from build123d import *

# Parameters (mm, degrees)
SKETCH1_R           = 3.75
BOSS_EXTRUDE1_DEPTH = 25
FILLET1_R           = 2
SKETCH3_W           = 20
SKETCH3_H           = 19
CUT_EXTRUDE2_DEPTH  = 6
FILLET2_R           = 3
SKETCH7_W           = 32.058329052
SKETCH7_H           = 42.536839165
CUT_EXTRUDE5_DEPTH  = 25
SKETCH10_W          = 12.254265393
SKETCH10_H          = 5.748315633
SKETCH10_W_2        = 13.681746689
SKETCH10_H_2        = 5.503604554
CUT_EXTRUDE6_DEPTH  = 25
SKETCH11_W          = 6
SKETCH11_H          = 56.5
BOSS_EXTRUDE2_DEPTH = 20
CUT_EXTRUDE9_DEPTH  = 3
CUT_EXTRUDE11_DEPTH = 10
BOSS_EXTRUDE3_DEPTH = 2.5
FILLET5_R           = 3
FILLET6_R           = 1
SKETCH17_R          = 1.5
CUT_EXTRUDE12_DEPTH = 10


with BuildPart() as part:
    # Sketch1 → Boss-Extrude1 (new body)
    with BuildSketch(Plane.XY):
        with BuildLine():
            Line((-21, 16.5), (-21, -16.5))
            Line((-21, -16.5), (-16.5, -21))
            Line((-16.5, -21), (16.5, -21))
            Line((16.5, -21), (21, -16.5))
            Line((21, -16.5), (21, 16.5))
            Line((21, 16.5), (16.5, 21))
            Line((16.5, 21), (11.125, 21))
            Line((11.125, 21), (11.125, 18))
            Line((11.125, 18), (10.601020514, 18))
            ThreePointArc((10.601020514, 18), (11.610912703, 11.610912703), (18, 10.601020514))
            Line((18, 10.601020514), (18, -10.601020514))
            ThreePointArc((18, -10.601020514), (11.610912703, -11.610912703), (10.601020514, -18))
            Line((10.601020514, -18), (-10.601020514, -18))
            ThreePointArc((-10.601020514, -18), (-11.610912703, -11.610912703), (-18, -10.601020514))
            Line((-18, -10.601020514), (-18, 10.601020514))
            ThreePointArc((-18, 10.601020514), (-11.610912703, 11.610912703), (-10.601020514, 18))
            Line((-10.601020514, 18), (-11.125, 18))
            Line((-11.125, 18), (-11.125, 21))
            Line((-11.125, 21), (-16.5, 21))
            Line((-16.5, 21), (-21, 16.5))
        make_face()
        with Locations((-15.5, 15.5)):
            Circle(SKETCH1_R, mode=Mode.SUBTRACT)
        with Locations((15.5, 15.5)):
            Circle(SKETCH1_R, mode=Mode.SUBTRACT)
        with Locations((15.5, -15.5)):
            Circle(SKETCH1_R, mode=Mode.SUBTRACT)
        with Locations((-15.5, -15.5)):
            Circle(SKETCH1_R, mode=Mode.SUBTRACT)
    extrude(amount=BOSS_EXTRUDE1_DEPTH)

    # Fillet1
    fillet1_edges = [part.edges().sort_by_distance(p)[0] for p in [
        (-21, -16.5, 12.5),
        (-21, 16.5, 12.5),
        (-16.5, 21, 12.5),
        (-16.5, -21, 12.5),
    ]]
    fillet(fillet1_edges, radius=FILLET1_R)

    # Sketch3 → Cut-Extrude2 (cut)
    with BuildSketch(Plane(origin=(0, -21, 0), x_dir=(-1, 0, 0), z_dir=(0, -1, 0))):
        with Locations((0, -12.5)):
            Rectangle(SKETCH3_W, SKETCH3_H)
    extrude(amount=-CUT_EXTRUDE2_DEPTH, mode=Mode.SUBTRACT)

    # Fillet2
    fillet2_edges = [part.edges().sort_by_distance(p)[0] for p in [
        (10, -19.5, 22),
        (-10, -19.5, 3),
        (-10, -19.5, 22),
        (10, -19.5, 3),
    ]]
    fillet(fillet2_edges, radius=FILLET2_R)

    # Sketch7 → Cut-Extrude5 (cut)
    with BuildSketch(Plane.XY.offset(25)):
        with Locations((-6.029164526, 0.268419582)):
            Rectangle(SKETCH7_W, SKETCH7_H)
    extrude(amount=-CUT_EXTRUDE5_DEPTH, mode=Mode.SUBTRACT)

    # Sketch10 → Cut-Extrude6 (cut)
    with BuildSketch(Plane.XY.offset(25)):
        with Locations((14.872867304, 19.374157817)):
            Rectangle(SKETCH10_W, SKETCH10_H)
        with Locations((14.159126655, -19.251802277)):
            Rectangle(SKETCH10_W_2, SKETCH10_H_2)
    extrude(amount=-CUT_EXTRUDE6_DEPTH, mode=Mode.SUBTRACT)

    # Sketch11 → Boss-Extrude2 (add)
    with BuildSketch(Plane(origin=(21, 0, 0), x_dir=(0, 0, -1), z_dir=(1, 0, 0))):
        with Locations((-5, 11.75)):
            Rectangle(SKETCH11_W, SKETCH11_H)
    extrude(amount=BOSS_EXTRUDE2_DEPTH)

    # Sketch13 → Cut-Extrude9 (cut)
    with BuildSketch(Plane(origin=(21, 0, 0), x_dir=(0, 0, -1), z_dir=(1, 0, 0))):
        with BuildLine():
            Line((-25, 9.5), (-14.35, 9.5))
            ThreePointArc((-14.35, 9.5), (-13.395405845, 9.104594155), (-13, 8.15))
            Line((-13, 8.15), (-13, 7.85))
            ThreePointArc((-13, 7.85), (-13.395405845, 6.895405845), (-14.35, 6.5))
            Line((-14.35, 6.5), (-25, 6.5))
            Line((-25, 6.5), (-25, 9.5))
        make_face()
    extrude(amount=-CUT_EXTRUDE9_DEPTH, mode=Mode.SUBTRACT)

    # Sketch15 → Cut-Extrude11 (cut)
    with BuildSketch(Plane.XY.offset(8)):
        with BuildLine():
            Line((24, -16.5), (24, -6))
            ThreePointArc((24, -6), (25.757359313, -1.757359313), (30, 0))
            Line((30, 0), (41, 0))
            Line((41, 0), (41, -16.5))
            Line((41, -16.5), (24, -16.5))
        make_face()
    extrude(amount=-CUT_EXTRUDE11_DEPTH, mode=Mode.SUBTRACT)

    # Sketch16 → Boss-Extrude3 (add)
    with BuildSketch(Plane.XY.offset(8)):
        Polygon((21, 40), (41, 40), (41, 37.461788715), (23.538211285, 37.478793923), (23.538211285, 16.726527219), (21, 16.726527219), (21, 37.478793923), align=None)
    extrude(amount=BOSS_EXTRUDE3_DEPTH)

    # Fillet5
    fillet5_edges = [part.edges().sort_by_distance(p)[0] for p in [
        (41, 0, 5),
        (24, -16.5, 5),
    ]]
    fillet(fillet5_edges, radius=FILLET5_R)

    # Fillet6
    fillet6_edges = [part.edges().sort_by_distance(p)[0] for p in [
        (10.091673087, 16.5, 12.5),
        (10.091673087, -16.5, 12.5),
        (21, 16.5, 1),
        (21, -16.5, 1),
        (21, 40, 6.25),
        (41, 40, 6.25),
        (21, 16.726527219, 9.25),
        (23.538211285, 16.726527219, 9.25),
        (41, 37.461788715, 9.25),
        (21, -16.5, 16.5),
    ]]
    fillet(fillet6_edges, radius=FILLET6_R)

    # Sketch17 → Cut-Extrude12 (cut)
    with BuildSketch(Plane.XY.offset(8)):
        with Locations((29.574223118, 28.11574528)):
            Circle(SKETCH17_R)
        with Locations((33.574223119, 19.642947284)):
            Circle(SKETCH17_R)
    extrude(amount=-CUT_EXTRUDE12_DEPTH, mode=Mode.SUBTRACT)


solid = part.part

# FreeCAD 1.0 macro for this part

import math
import FreeCAD as App
import Part
import Sketcher
from FreeCAD import Vector
Q = App.Units.Quantity


def edges_at(feature, points):
    """Names of the edges that pass closest to the given points."""
    edges = feature.Shape.Edges
    near = lambda p: min(range(len(edges)), key=lambda i: edges[i].distToShape(Part.Vertex(*p))[0])
    return sorted({f"Edge{near(p) + 1}" for p in points})


def add_polygon(sketch, points):
    """Adds a closed chain of lines whose ends are joined by coincident constraints."""
    first, n = sketch.GeometryCount, len(points)
    for a, b in zip(points, points[1:] + points[:1]):
        sketch.addGeometry(Part.LineSegment(App.Vector(*a, 0), App.Vector(*b, 0)), False)
    for i in range(n):
        sketch.addConstraint(Sketcher.Constraint("Coincident", first + i, 2, first + (i + 1) % n, 1))

doc = App.newDocument("Part")
body = doc.addObject("PartDesign::Body", "Body")

# Sketch on XY plane
sketch1 = body.newObject("Sketcher::SketchObject", "Sketch")
sketch1.AttachmentSupport = (doc.getObject("XY_Plane"), [""])
sketch1.MapMode = "FlatFace"
sketch1.addGeometry([
    Part.LineSegment(Vector(-21, 16.5, 0), Vector(-21, -16.5, 0)),  # 0
    Part.LineSegment(Vector(-21, -16.5, 0), Vector(-16.5, -21, 0)),  # 1
    Part.LineSegment(Vector(-16.5, -21, 0), Vector(16.5, -21, 0)),  # 2
    Part.LineSegment(Vector(16.5, -21, 0), Vector(21, -16.5, 0)),  # 3
    Part.LineSegment(Vector(21, -16.5, 0), Vector(21, 16.5, 0)),  # 4
    Part.LineSegment(Vector(21, 16.5, 0), Vector(16.5, 21, 0)),  # 5
    Part.LineSegment(Vector(16.5, 21, 0), Vector(11.1, 21, 0)),  # 6
    Part.LineSegment(Vector(11.1, 21, 0), Vector(11.1, 18, 0)),  # 7
    Part.LineSegment(Vector(11.1, 18, 0), Vector(10.6, 18, 0)),  # 8
    Part.ArcOfCircle(Part.Circle(Vector(15.5, 15.5, 0), Vector(0, 0, 1), 5.5), math.radians(153), math.radians(297)),  # 9
    Part.LineSegment(Vector(18, 10.6, 0), Vector(18, -10.6, 0)),  # 10
    Part.ArcOfCircle(Part.Circle(Vector(15.5, -15.5, 0), Vector(0, 0, 1), 5.5), math.radians(63), math.radians(207)),  # 11
    Part.LineSegment(Vector(10.6, -18, 0), Vector(-10.6, -18, 0)),  # 12
    Part.ArcOfCircle(Part.Circle(Vector(-15.5, -15.5, 0), Vector(0, 0, 1), 5.5), math.radians(-27), math.radians(117)),  # 13
    Part.LineSegment(Vector(-18, -10.6, 0), Vector(-18, 10.6, 0)),  # 14
    Part.ArcOfCircle(Part.Circle(Vector(-15.5, 15.5, 0), Vector(0, 0, 1), 5.5), math.radians(-117), math.radians(27)),  # 15
    Part.LineSegment(Vector(-10.6, 18, 0), Vector(-11.1, 18, 0)),  # 16
    Part.LineSegment(Vector(-11.1, 18, 0), Vector(-11.1, 21, 0)),  # 17
    Part.LineSegment(Vector(-11.1, 21, 0), Vector(-16.5, 21, 0)),  # 18
    Part.LineSegment(Vector(-16.5, 21, 0), Vector(-21, 16.5, 0)),  # 19
    Part.Circle(Vector(-15.5, -15.5, 0), Vector(0, 0, 1), 3.8),  # 20
    Part.Circle(Vector(15.5, -15.5, 0), Vector(0, 0, 1), 3.8),  # 21
    Part.Circle(Vector(-15.5, 15.5, 0), Vector(0, 0, 1), 3.8),  # 22
    Part.Circle(Vector(15.5, 15.5, 0), Vector(0, 0, 1), 3.8),  # 23
], False)
sketch1.addConstraint([
    Sketcher.Constraint("Coincident", 0, 2, 1, 1),
    Sketcher.Constraint("Coincident", 1, 2, 2, 1),
    Sketcher.Constraint("Coincident", 2, 2, 3, 1),
    Sketcher.Constraint("Coincident", 3, 2, 4, 1),
    Sketcher.Constraint("Coincident", 4, 2, 5, 1),
    Sketcher.Constraint("Coincident", 5, 2, 6, 1),
    Sketcher.Constraint("Coincident", 6, 2, 7, 1),
    Sketcher.Constraint("Coincident", 7, 2, 8, 1),
    Sketcher.Constraint("Coincident", 8, 2, 9, 1),
    Sketcher.Constraint("Coincident", 9, 2, 10, 1),
    Sketcher.Constraint("Coincident", 10, 2, 11, 1),
    Sketcher.Constraint("Coincident", 11, 2, 12, 1),
    Sketcher.Constraint("Coincident", 12, 2, 13, 1),
    Sketcher.Constraint("Coincident", 13, 2, 14, 1),
    Sketcher.Constraint("Coincident", 14, 2, 15, 1),
    Sketcher.Constraint("Coincident", 15, 2, 16, 1),
    Sketcher.Constraint("Coincident", 16, 2, 17, 1),
    Sketcher.Constraint("Coincident", 17, 2, 18, 1),
    Sketcher.Constraint("Coincident", 18, 2, 19, 1),
    Sketcher.Constraint("Coincident", 19, 2, 0, 1),
    Sketcher.Constraint("Vertical", 0),
    Sketcher.Constraint("Horizontal", 2),
    Sketcher.Constraint("Vertical", 4),
    Sketcher.Constraint("Horizontal", 6),
    Sketcher.Constraint("Vertical", 7),
    Sketcher.Constraint("Horizontal", 8),
    Sketcher.Constraint("Vertical", 10),
    Sketcher.Constraint("Horizontal", 12),
    Sketcher.Constraint("Vertical", 14),
    Sketcher.Constraint("Horizontal", 16),
    Sketcher.Constraint("Vertical", 17),
    Sketcher.Constraint("Horizontal", 18),
    Sketcher.Constraint("Coincident", 20, 3, 13, 3),
    Sketcher.Constraint("Coincident", 21, 3, 11, 3),
    Sketcher.Constraint("Coincident", 22, 3, 15, 3),
    Sketcher.Constraint("Coincident", 23, 3, 9, 3),
    Sketcher.Constraint("Equal", 9, 11),
    Sketcher.Constraint("Equal", 11, 13),
    Sketcher.Constraint("Equal", 13, 15),
    Sketcher.Constraint("Equal", 20, 21),
    Sketcher.Constraint("Equal", 21, 22),
    Sketcher.Constraint("Equal", 22, 23),
    Sketcher.Constraint("Symmetric", 9, 3, 13, 3, -1, 1),
    Sketcher.Constraint("Symmetric", 11, 3, 15, 3, -1, 1),
    Sketcher.Constraint("Symmetric", 0, 2, 4, 2, -1, 1),
    Sketcher.Constraint("Symmetric", 1, 2, 5, 2, -1, 1),
    Sketcher.Constraint("Symmetric", 2, 2, 18, 2, -1, 1),
    Sketcher.Constraint("Symmetric", 11, 3, 13, 3, -2),
    Sketcher.Constraint("Symmetric", 7, 2, 16, 2, -2),
    Sketcher.Constraint("Perpendicular", 1, 3),
    Sketcher.Constraint("Perpendicular", 5, 19),
    Sketcher.Constraint("Horizontal", 0, 2, 3, 2),
    Sketcher.Constraint("Horizontal", 10, 2, 13, 2),
    Sketcher.Constraint("Vertical", 2, 2, 5, 2),
    Sketcher.Constraint("Vertical", 8, 2, 11, 2),
    Sketcher.Constraint("Equal", 2, 0),
    Sketcher.Constraint("Equal", 12, 10),
    Sketcher.Constraint("Diameter", 20, Q("7.5 mm")),
    Sketcher.Constraint("Radius", 9, Q("5.5 mm")),
    Sketcher.Constraint("DistanceX", 2, 1, 2, 2, Q("33 mm")),
    Sketcher.Constraint("DistanceY", 7, 2, 7, 1, Q("3 mm")),
    Sketcher.Constraint("DistanceX", 0, 2, -1, 1, Q("21 mm")),
    Sketcher.Constraint("DistanceX", -1, 1, 9, 2, Q("18 mm")),
    Sketcher.Constraint("DistanceY", 11, 3, 9, 3, Q("31 mm")),
    Sketcher.Constraint("DistanceX", 6, 2, 6, 1, Q("5.375 mm")),
])
pad1 = body.newObject("PartDesign::Pad", "Pad")
pad1.Profile = sketch1
pad1.Length = 25
doc.recompute()

fillet = body.newObject("PartDesign::Fillet", "Fillet")
fillet.Base = (pad1, edges_at(pad1, [
    (-21, -16.5, 12.5),
    (-21, 16.5, 12.5),
    (-16.5, 21, 12.5),
    (-16.5, -21, 12.5),
]))
fillet.Radius = 2

# Sketch on XZ plane
sketch2 = body.newObject("Sketcher::SketchObject", "Sketch001")
sketch2.AttachmentSupport = (doc.getObject("XZ_Plane"), [""])
sketch2.MapMode = "FlatFace"
sketch2.AttachmentOffset = App.Placement(Vector(0, 0, 21), App.Rotation())
add_polygon(sketch2, [(10, 3), (10, 22), (-10, 22), (-10, 3)])  # lines 0-3
sketch2.addConstraint([
    Sketcher.Constraint("Vertical", 0),
    Sketcher.Constraint("Horizontal", 1),
    Sketcher.Constraint("Vertical", 2),
    Sketcher.Constraint("Horizontal", 3),
    Sketcher.Constraint("DistanceX", 1, 2, 1, 1, Q("20 mm")),
    Sketcher.Constraint("DistanceY", 0, 1, 0, 2, Q("19 mm")),
    Sketcher.Constraint("DistanceX", -1, 1, 0, 2, Q("10 mm")),
    Sketcher.Constraint("DistanceY", -1, 1, 0, 2, Q("22 mm")),
])
pocket1 = body.newObject("PartDesign::Pocket", "Pocket")
pocket1.Profile = sketch2
pocket1.Length = 6
doc.recompute()

fillet2 = body.newObject("PartDesign::Fillet", "Fillet001")
fillet2.Base = (pocket1, edges_at(pocket1, [
    (10, -19.5, 22),
    (-10, -19.5, 3),
    (-10, -19.5, 22),
    (10, -19.5, 3),
]))
fillet2.Radius = 3

# Sketch on XY plane
sketch3 = body.newObject("Sketcher::SketchObject", "Sketch002")
sketch3.AttachmentSupport = (doc.getObject("XY_Plane"), [""])
sketch3.MapMode = "FlatFace"
sketch3.AttachmentOffset = App.Placement(Vector(0, 0, 25), App.Rotation())
add_polygon(sketch3, [(-22, 22), (-22, -21), (10, -21), (10, 22)])  # lines 0-3
sketch3.addConstraint([
    Sketcher.Constraint("Vertical", 0),
    Sketcher.Constraint("Horizontal", 1),
    Sketcher.Constraint("Vertical", 2),
    Sketcher.Constraint("Horizontal", 3),
    Sketcher.Constraint("DistanceY", 0, 2, -1, 1, Q("21 mm")),
    Sketcher.Constraint("DistanceX", -1, 1, 1, 2, Q("10 mm")),
    Sketcher.Constraint("DistanceX", 1, 1, 1, 2, Q("32.058329 mm")),
    Sketcher.Constraint("DistanceY", 0, 2, 0, 1, Q("42.536839 mm")),
])
pocket2 = body.newObject("PartDesign::Pocket", "Pocket001")
pocket2.Profile = sketch3
pocket2.Length = 25

# Sketch on XY plane
sketch4 = body.newObject("Sketcher::SketchObject", "Sketch003")
sketch4.AttachmentSupport = (doc.getObject("XY_Plane"), [""])
sketch4.MapMode = "FlatFace"
sketch4.AttachmentOffset = App.Placement(Vector(0, 0, 25), App.Rotation())
add_polygon(sketch4, [(9, 22), (9, 17), (21, 17), (21, 22)])  # lines 0-3
add_polygon(sketch4, [(7, -16), (7, -22), (21, -22), (21, -16)])  # lines 4-7
sketch4.addConstraint([
    Sketcher.Constraint("Vertical", 0),
    Sketcher.Constraint("Horizontal", 1),
    Sketcher.Constraint("Vertical", 2),
    Sketcher.Constraint("Horizontal", 3),
    Sketcher.Constraint("Vertical", 4),
    Sketcher.Constraint("Horizontal", 5),
    Sketcher.Constraint("Vertical", 6),
    Sketcher.Constraint("Horizontal", 7),
    Sketcher.Constraint("Symmetric", 1, 2, 6, 2, -1),
    Sketcher.Constraint("DistanceX", -1, 1, 1, 2, Q("21 mm")),
    Sketcher.Constraint("DistanceY", 6, 2, 1, 2, Q("33 mm")),
    Sketcher.Constraint("DistanceX", 1, 1, 1, 2, Q("12.254265 mm")),
    Sketcher.Constraint("DistanceX", 5, 1, 5, 2, Q("13.681747 mm")),
    Sketcher.Constraint("DistanceY", 0, 2, 0, 1, Q("5.748316 mm")),
    Sketcher.Constraint("DistanceY", 4, 2, 4, 1, Q("5.503605 mm")),
])
pocket3 = body.newObject("PartDesign::Pocket", "Pocket002")
pocket3.Profile = sketch4
pocket3.Length = 25

# Sketch on YZ plane
sketch5 = body.newObject("Sketcher::SketchObject", "Sketch004")
sketch5.AttachmentSupport = (doc.getObject("YZ_Plane"), [""])
sketch5.MapMode = "FlatFace"
sketch5.AttachmentOffset = App.Placement(Vector(0, 0, 21), App.Rotation())
add_polygon(sketch5, [(40, 8), (-16, 8), (-16, 2), (40, 2)])  # lines 0-3
sketch5.addConstraint([
    Sketcher.Constraint("Horizontal", 0),
    Sketcher.Constraint("Vertical", 1),
    Sketcher.Constraint("Horizontal", 2),
    Sketcher.Constraint("Vertical", 3),
    Sketcher.Constraint("DistanceY", 1, 2, 1, 1, Q("6 mm")),
    Sketcher.Constraint("DistanceX", 0, 2, 0, 1, Q("56.5 mm")),
    Sketcher.Constraint("DistanceY", -1, 1, 0, 2, Q("8 mm")),
    Sketcher.Constraint("DistanceX", -1, 1, 2, 2, Q("40 mm")),
])
pad2 = body.newObject("PartDesign::Pad", "Pad001")
pad2.Profile = sketch5
pad2.Length = 20

# Sketch on YZ plane
sketch6 = body.newObject("Sketcher::SketchObject", "Sketch005")
sketch6.AttachmentSupport = (doc.getObject("YZ_Plane"), [""])
sketch6.MapMode = "FlatFace"
sketch6.AttachmentOffset = App.Placement(Vector(0, 0, 21), App.Rotation())
sketch6.addGeometry([
    Part.LineSegment(Vector(9.5, 14.35, 0), Vector(9.5, 25, 0)),  # 0
    Part.LineSegment(Vector(9.5, 25, 0), Vector(6.5, 25, 0)),  # 1
    Part.LineSegment(Vector(6.5, 25, 0), Vector(6.5, 14.35, 0)),  # 2
    Part.ArcOfCircle(Part.Circle(Vector(7.85, 14.35, 0), Vector(0, 0, 1), 1.35), math.radians(180), math.radians(270)),  # 3
    Part.LineSegment(Vector(7.85, 13, 0), Vector(8.15, 13, 0)),  # 4
    Part.ArcOfCircle(Part.Circle(Vector(8.15, 14.35, 0), Vector(0, 0, 1), 1.35), math.radians(-90), math.radians(0)),  # 5
], False)
sketch6.addConstraint([
    Sketcher.Constraint("Coincident", 0, 2, 1, 1),
    Sketcher.Constraint("Coincident", 1, 2, 2, 1),
    Sketcher.Constraint("Tangent", 2, 2, 3, 1),
    Sketcher.Constraint("Tangent", 3, 2, 4, 1),
    Sketcher.Constraint("Tangent", 4, 2, 5, 1),
    Sketcher.Constraint("Tangent", 5, 2, 0, 1),
    Sketcher.Constraint("Vertical", 0),
    Sketcher.Constraint("Horizontal", 1),
    Sketcher.Constraint("Vertical", 2),
    Sketcher.Constraint("Horizontal", 4),
    Sketcher.Constraint("Equal", 3, 5),
    Sketcher.Constraint("DistanceX", 1, 2, 1, 1, Q("3 mm")),
    Sketcher.Constraint("Radius", 3, Q("1.35 mm")),
    Sketcher.Constraint("DistanceY", -1, 1, 0, 2, Q("25 mm")),
    Sketcher.Constraint("DistanceY", -1, 1, 3, 2, Q("13 mm")),
    Sketcher.Constraint("DistanceX", -1, 1, 0, 2, Q("9.5 mm")),
])
pocket4 = body.newObject("PartDesign::Pocket", "Pocket003")
pocket4.Profile = sketch6
pocket4.Length = 3

# Sketch on XY plane
sketch7 = body.newObject("Sketcher::SketchObject", "Sketch006")
sketch7.AttachmentSupport = (doc.getObject("XY_Plane"), [""])
sketch7.MapMode = "FlatFace"
sketch7.AttachmentOffset = App.Placement(Vector(0, 0, 8), App.Rotation())
sketch7.addGeometry([
    Part.LineSegment(Vector(24, -6, 0), Vector(24, -16, 0)),  # 0
    Part.LineSegment(Vector(24, -16, 0), Vector(41, -16, 0)),  # 1
    Part.LineSegment(Vector(41, -16, 0), Vector(41, 0, 0)),  # 2
    Part.LineSegment(Vector(41, 0, 0), Vector(30, 0, 0)),  # 3
    Part.ArcOfCircle(Part.Circle(Vector(30, -6, 0), Vector(0, 0, 1), 6), math.radians(90), math.radians(180)),  # 4
], False)
sketch7.addConstraint([
    Sketcher.Constraint("Coincident", 0, 2, 1, 1),
    Sketcher.Constraint("Coincident", 1, 2, 2, 1),
    Sketcher.Constraint("Coincident", 2, 2, 3, 1),
    Sketcher.Constraint("Tangent", 3, 2, 4, 1),
    Sketcher.Constraint("Tangent", 4, 2, 0, 1),
    Sketcher.Constraint("Vertical", 0),
    Sketcher.Constraint("Horizontal", 1),
    Sketcher.Constraint("Vertical", 2),
    Sketcher.Constraint("Horizontal", 3),
    Sketcher.Constraint("PointOnObject", 2, 2, -1),
    Sketcher.Constraint("Radius", 4, Q("6 mm")),
    Sketcher.Constraint("DistanceX", 1, 1, 1, 2, Q("17 mm")),
    Sketcher.Constraint("DistanceY", 0, 2, 0, 1, Q("10.5 mm")),
    Sketcher.Constraint("DistanceX", -1, 1, 4, 3, Q("30 mm")),
])
pocket5 = body.newObject("PartDesign::Pocket", "Pocket004")
pocket5.Profile = sketch7
pocket5.Length = 10

# Sketch on XY plane
sketch8 = body.newObject("Sketcher::SketchObject", "Sketch007")
sketch8.AttachmentSupport = (doc.getObject("XY_Plane"), [""])
sketch8.MapMode = "FlatFace"
sketch8.AttachmentOffset = App.Placement(Vector(0, 0, 8), App.Rotation())
add_polygon(sketch8, [(41, 40), (21, 40), (21, 16.7), (23.5, 16.7), (23.5, 37.5), (41, 37.5)])  # lines 0-5
sketch8.addConstraint([
    Sketcher.Constraint("Horizontal", 0),
    Sketcher.Constraint("Vertical", 1),
    Sketcher.Constraint("Horizontal", 2),
    Sketcher.Constraint("Vertical", 3),
    Sketcher.Constraint("Vertical", 5),
    Sketcher.Constraint("Equal", 2, 5),
    Sketcher.Constraint("DistanceX", 0, 2, 0, 1, Q("20 mm")),
    Sketcher.Constraint("DistanceX", -1, 1, 0, 2, Q("21 mm")),
    Sketcher.Constraint("DistanceY", -1, 1, 0, 2, Q("40 mm")),
    Sketcher.Constraint("DistanceX", 2, 1, 2, 2, Q("2.538211 mm")),
    Sketcher.Constraint("DistanceY", 1, 2, 1, 1, Q("23.273473 mm")),
    Sketcher.Constraint("DistanceY", 3, 1, 3, 2, Q("20.752267 mm")),
])
pad3 = body.newObject("PartDesign::Pad", "Pad002")
pad3.Profile = sketch8
pad3.Length = 2.5
doc.recompute()

fillet3 = body.newObject("PartDesign::Fillet", "Fillet002")
fillet3.Base = (pad3, edges_at(pad3, [(41, 0, 5), (24, -16.5, 5)]))
fillet3.Radius = 3
doc.recompute()

fillet4 = body.newObject("PartDesign::Fillet", "Fillet003")
fillet4.Base = (fillet3, edges_at(fillet3, [
    (10.092, 16.5, 12.5),
    (10.092, -16.5, 12.5),
    (21, 16.5, 1),
    (21, -16.5, 1),
    (21, 40, 6.25),
    (41, 40, 6.25),
    (21, 16.727, 9.25),
    (23.538, 16.727, 9.25),
    (41, 37.462, 9.25),
    (21, -16.5, 16.5),
]))
fillet4.Radius = 1

# Sketch on XY plane
sketch9 = body.newObject("Sketcher::SketchObject", "Sketch008")
sketch9.AttachmentSupport = (doc.getObject("XY_Plane"), [""])
sketch9.MapMode = "FlatFace"
sketch9.AttachmentOffset = App.Placement(Vector(0, 0, 8), App.Rotation())
sketch9.addGeometry([
    Part.Circle(Vector(29.6, 28.1, 0), Vector(0, 0, 1), 1.5),
    Part.Circle(Vector(33.6, 19.6, 0), Vector(0, 0, 1), 1.5),
], False)
sketch9.addConstraint([
    Sketcher.Constraint("Equal", 0, 1),
    Sketcher.Constraint("Diameter", 0, Q("3 mm")),
    Sketcher.Constraint("DistanceX", 0, 3, 1, 3, Q("4 mm")),
    Sketcher.Constraint("DistanceX", -1, 1, 0, 3, Q("29.574223 mm")),
    Sketcher.Constraint("DistanceY", -1, 1, 0, 3, Q("28.115745 mm")),
    Sketcher.Constraint("DistanceY", -1, 1, 1, 3, Q("19.642947 mm")),
])
pocket6 = body.newObject("PartDesign::Pocket", "Pocket005")
pocket6.Profile = sketch9
pocket6.Length = 10

doc.recompute()
